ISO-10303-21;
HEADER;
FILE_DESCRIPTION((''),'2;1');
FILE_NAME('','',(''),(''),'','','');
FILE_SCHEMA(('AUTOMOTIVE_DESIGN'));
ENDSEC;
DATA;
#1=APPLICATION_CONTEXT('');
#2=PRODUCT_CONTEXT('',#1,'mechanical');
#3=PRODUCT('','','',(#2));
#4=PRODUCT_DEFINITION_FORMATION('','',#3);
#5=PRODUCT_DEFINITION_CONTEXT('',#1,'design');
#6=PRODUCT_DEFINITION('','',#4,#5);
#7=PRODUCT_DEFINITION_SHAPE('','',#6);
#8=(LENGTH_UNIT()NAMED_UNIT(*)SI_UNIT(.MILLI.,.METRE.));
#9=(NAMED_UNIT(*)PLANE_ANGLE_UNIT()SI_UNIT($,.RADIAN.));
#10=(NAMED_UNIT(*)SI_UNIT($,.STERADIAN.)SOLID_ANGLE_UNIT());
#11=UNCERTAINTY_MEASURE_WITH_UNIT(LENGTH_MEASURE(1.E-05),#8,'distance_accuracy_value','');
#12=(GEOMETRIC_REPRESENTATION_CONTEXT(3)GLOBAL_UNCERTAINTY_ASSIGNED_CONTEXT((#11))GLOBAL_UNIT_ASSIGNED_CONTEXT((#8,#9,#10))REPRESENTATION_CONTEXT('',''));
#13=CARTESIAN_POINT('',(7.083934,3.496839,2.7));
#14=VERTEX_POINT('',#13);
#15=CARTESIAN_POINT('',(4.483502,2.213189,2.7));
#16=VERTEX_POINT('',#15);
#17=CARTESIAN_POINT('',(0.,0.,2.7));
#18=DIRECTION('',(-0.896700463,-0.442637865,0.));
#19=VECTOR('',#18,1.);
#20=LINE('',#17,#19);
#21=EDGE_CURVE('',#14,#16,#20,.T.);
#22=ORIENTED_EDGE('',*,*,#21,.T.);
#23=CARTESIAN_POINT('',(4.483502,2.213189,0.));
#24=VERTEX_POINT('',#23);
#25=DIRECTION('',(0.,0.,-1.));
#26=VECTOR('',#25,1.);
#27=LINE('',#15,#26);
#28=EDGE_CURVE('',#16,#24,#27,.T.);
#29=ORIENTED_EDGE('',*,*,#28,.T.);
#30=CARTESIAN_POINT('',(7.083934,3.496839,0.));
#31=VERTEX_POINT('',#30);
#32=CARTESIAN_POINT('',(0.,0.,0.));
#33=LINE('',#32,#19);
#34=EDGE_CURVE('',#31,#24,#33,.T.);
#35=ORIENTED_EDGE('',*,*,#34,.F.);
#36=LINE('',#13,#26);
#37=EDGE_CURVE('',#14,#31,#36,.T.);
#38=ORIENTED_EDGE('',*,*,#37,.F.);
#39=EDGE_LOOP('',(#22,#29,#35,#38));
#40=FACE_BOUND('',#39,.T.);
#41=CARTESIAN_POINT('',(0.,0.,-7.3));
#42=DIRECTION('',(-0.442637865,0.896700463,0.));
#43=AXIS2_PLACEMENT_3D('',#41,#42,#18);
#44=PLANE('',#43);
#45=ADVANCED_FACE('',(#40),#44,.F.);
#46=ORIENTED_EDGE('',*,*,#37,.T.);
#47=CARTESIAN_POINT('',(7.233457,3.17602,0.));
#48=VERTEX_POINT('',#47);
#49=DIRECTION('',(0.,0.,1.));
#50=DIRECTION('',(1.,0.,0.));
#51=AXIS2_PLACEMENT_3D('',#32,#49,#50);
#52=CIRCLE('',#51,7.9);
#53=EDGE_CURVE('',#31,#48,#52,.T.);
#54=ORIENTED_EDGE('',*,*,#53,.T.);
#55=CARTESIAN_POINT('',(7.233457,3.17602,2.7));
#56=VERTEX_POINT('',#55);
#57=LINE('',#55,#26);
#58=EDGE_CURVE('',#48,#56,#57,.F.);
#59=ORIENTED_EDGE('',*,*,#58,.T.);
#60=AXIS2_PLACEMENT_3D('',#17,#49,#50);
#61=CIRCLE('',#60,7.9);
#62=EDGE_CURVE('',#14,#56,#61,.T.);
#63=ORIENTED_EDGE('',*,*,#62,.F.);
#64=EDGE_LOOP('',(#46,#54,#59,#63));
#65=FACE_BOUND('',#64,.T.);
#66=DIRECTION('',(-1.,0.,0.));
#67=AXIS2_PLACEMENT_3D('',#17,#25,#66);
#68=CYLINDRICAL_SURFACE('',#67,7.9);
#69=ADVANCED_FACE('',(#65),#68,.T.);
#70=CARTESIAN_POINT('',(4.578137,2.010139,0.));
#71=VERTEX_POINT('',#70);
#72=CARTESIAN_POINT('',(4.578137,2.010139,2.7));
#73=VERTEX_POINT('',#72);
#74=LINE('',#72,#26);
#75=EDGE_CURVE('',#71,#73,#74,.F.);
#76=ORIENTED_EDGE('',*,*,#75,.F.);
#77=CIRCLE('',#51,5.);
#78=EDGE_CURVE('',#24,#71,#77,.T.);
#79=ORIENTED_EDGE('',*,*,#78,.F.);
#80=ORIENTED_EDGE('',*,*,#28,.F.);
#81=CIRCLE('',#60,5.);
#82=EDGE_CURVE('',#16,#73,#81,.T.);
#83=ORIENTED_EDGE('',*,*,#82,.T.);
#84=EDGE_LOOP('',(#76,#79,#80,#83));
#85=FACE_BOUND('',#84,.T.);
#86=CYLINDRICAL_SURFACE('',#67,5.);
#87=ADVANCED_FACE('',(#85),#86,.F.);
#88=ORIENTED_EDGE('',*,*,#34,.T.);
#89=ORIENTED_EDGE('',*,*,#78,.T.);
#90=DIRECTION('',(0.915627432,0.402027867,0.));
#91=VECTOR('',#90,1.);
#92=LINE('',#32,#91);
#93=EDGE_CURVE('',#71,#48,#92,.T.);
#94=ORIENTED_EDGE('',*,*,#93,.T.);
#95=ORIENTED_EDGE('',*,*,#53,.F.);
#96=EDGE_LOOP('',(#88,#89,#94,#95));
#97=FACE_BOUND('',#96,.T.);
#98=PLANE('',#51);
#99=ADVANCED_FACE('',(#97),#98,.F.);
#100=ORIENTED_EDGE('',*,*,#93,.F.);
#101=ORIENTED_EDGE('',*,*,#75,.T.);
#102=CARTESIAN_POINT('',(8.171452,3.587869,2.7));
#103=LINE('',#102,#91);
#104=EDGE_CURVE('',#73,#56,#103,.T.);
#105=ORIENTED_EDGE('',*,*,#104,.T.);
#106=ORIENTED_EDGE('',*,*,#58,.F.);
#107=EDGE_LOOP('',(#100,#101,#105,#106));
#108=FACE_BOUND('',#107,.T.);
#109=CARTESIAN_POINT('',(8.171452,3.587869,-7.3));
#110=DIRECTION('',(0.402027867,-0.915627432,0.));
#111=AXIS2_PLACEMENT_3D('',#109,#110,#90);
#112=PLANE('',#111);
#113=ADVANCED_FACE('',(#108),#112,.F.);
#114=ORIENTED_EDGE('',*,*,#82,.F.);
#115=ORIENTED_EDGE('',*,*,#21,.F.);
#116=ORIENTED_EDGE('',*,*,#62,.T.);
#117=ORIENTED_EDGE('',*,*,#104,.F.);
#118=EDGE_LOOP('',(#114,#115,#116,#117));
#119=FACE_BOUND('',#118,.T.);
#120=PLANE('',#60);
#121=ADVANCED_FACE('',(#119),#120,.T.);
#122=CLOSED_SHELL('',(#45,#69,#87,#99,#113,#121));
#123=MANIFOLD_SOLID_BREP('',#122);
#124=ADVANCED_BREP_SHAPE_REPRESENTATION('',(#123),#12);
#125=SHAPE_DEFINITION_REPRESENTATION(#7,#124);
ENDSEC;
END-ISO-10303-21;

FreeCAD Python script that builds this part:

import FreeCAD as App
import Part
import Sketcher
Q = App.Units.Quantity

doc = App.newDocument("Part")
body = doc.addObject("PartDesign::Body", "Body")

sketch1 = body.newObject("Sketcher::SketchObject", "Sketch")
sketch1.AttachmentSupport = (doc.getObject("XY_Plane"), [""])
sketch1.MapMode = "FlatFace"
sketch1.addGeometry([
    Part.Circle(App.Vector(0, 0, 0), App.Vector(0, 0, 1), 8),
    Part.Circle(App.Vector(0, 0, 0), App.Vector(0, 0, 1), 5),
], False)
sketch1.addConstraint([
    Sketcher.Constraint("Coincident", 0, 3, -1, 1),
    Sketcher.Constraint("Coincident", 1, 3, -1, 1),
    Sketcher.Constraint("Diameter", 1, Q("10 mm")),
    Sketcher.Constraint("Diameter", 0, Q("15.8 mm")),
])
pad1 = body.newObject("PartDesign::Pad", "Pad")
pad1.Profile = sketch1
pad1.Length = 2.7

sketch2 = body.newObject("Sketcher::SketchObject", "Sketch001")
sketch2.AttachmentSupport = (doc.getObject("XY_Plane"), [""])
sketch2.MapMode = "FlatFace"
sketch2.AttachmentOffset = App.Placement(App.Vector(0, 0, 2.7), App.Rotation())
sketch2.addGeometry([
    Part.LineSegment(App.Vector(8.17, 4.03, 0), App.Vector(0, 0, 0)),
    Part.LineSegment(App.Vector(0, 0, 0), App.Vector(8.17, 3.59, 0)),
    Part.LineSegment(App.Vector(8.17, 3.59, 0), App.Vector(8.17, 4.03, 0)),
], False)
sketch2.addConstraint([
    Sketcher.Constraint("Coincident", 0, 2, 1, 1),
    Sketcher.Constraint("Coincident", 1, 2, 2, 1),
    Sketcher.Constraint("Coincident", 2, 2, 0, 1),
    Sketcher.Constraint("Vertical", 2),
    Sketcher.Constraint("Coincident", 0, 2, -1, 1),
    Sketcher.Constraint("DistanceY", 2, 1, 2, 2, Q("0.445801 mm")),
    Sketcher.Constraint("Distance", 0, Q("9.1128 mm")),
    Sketcher.Constraint("Distance", 1, Q("8.924429 mm")),
])
pocket1 = body.newObject("PartDesign::Pocket", "Pocket")
pocket1.Profile = sketch2
pocket1.Length = 10

doc.recompute()
